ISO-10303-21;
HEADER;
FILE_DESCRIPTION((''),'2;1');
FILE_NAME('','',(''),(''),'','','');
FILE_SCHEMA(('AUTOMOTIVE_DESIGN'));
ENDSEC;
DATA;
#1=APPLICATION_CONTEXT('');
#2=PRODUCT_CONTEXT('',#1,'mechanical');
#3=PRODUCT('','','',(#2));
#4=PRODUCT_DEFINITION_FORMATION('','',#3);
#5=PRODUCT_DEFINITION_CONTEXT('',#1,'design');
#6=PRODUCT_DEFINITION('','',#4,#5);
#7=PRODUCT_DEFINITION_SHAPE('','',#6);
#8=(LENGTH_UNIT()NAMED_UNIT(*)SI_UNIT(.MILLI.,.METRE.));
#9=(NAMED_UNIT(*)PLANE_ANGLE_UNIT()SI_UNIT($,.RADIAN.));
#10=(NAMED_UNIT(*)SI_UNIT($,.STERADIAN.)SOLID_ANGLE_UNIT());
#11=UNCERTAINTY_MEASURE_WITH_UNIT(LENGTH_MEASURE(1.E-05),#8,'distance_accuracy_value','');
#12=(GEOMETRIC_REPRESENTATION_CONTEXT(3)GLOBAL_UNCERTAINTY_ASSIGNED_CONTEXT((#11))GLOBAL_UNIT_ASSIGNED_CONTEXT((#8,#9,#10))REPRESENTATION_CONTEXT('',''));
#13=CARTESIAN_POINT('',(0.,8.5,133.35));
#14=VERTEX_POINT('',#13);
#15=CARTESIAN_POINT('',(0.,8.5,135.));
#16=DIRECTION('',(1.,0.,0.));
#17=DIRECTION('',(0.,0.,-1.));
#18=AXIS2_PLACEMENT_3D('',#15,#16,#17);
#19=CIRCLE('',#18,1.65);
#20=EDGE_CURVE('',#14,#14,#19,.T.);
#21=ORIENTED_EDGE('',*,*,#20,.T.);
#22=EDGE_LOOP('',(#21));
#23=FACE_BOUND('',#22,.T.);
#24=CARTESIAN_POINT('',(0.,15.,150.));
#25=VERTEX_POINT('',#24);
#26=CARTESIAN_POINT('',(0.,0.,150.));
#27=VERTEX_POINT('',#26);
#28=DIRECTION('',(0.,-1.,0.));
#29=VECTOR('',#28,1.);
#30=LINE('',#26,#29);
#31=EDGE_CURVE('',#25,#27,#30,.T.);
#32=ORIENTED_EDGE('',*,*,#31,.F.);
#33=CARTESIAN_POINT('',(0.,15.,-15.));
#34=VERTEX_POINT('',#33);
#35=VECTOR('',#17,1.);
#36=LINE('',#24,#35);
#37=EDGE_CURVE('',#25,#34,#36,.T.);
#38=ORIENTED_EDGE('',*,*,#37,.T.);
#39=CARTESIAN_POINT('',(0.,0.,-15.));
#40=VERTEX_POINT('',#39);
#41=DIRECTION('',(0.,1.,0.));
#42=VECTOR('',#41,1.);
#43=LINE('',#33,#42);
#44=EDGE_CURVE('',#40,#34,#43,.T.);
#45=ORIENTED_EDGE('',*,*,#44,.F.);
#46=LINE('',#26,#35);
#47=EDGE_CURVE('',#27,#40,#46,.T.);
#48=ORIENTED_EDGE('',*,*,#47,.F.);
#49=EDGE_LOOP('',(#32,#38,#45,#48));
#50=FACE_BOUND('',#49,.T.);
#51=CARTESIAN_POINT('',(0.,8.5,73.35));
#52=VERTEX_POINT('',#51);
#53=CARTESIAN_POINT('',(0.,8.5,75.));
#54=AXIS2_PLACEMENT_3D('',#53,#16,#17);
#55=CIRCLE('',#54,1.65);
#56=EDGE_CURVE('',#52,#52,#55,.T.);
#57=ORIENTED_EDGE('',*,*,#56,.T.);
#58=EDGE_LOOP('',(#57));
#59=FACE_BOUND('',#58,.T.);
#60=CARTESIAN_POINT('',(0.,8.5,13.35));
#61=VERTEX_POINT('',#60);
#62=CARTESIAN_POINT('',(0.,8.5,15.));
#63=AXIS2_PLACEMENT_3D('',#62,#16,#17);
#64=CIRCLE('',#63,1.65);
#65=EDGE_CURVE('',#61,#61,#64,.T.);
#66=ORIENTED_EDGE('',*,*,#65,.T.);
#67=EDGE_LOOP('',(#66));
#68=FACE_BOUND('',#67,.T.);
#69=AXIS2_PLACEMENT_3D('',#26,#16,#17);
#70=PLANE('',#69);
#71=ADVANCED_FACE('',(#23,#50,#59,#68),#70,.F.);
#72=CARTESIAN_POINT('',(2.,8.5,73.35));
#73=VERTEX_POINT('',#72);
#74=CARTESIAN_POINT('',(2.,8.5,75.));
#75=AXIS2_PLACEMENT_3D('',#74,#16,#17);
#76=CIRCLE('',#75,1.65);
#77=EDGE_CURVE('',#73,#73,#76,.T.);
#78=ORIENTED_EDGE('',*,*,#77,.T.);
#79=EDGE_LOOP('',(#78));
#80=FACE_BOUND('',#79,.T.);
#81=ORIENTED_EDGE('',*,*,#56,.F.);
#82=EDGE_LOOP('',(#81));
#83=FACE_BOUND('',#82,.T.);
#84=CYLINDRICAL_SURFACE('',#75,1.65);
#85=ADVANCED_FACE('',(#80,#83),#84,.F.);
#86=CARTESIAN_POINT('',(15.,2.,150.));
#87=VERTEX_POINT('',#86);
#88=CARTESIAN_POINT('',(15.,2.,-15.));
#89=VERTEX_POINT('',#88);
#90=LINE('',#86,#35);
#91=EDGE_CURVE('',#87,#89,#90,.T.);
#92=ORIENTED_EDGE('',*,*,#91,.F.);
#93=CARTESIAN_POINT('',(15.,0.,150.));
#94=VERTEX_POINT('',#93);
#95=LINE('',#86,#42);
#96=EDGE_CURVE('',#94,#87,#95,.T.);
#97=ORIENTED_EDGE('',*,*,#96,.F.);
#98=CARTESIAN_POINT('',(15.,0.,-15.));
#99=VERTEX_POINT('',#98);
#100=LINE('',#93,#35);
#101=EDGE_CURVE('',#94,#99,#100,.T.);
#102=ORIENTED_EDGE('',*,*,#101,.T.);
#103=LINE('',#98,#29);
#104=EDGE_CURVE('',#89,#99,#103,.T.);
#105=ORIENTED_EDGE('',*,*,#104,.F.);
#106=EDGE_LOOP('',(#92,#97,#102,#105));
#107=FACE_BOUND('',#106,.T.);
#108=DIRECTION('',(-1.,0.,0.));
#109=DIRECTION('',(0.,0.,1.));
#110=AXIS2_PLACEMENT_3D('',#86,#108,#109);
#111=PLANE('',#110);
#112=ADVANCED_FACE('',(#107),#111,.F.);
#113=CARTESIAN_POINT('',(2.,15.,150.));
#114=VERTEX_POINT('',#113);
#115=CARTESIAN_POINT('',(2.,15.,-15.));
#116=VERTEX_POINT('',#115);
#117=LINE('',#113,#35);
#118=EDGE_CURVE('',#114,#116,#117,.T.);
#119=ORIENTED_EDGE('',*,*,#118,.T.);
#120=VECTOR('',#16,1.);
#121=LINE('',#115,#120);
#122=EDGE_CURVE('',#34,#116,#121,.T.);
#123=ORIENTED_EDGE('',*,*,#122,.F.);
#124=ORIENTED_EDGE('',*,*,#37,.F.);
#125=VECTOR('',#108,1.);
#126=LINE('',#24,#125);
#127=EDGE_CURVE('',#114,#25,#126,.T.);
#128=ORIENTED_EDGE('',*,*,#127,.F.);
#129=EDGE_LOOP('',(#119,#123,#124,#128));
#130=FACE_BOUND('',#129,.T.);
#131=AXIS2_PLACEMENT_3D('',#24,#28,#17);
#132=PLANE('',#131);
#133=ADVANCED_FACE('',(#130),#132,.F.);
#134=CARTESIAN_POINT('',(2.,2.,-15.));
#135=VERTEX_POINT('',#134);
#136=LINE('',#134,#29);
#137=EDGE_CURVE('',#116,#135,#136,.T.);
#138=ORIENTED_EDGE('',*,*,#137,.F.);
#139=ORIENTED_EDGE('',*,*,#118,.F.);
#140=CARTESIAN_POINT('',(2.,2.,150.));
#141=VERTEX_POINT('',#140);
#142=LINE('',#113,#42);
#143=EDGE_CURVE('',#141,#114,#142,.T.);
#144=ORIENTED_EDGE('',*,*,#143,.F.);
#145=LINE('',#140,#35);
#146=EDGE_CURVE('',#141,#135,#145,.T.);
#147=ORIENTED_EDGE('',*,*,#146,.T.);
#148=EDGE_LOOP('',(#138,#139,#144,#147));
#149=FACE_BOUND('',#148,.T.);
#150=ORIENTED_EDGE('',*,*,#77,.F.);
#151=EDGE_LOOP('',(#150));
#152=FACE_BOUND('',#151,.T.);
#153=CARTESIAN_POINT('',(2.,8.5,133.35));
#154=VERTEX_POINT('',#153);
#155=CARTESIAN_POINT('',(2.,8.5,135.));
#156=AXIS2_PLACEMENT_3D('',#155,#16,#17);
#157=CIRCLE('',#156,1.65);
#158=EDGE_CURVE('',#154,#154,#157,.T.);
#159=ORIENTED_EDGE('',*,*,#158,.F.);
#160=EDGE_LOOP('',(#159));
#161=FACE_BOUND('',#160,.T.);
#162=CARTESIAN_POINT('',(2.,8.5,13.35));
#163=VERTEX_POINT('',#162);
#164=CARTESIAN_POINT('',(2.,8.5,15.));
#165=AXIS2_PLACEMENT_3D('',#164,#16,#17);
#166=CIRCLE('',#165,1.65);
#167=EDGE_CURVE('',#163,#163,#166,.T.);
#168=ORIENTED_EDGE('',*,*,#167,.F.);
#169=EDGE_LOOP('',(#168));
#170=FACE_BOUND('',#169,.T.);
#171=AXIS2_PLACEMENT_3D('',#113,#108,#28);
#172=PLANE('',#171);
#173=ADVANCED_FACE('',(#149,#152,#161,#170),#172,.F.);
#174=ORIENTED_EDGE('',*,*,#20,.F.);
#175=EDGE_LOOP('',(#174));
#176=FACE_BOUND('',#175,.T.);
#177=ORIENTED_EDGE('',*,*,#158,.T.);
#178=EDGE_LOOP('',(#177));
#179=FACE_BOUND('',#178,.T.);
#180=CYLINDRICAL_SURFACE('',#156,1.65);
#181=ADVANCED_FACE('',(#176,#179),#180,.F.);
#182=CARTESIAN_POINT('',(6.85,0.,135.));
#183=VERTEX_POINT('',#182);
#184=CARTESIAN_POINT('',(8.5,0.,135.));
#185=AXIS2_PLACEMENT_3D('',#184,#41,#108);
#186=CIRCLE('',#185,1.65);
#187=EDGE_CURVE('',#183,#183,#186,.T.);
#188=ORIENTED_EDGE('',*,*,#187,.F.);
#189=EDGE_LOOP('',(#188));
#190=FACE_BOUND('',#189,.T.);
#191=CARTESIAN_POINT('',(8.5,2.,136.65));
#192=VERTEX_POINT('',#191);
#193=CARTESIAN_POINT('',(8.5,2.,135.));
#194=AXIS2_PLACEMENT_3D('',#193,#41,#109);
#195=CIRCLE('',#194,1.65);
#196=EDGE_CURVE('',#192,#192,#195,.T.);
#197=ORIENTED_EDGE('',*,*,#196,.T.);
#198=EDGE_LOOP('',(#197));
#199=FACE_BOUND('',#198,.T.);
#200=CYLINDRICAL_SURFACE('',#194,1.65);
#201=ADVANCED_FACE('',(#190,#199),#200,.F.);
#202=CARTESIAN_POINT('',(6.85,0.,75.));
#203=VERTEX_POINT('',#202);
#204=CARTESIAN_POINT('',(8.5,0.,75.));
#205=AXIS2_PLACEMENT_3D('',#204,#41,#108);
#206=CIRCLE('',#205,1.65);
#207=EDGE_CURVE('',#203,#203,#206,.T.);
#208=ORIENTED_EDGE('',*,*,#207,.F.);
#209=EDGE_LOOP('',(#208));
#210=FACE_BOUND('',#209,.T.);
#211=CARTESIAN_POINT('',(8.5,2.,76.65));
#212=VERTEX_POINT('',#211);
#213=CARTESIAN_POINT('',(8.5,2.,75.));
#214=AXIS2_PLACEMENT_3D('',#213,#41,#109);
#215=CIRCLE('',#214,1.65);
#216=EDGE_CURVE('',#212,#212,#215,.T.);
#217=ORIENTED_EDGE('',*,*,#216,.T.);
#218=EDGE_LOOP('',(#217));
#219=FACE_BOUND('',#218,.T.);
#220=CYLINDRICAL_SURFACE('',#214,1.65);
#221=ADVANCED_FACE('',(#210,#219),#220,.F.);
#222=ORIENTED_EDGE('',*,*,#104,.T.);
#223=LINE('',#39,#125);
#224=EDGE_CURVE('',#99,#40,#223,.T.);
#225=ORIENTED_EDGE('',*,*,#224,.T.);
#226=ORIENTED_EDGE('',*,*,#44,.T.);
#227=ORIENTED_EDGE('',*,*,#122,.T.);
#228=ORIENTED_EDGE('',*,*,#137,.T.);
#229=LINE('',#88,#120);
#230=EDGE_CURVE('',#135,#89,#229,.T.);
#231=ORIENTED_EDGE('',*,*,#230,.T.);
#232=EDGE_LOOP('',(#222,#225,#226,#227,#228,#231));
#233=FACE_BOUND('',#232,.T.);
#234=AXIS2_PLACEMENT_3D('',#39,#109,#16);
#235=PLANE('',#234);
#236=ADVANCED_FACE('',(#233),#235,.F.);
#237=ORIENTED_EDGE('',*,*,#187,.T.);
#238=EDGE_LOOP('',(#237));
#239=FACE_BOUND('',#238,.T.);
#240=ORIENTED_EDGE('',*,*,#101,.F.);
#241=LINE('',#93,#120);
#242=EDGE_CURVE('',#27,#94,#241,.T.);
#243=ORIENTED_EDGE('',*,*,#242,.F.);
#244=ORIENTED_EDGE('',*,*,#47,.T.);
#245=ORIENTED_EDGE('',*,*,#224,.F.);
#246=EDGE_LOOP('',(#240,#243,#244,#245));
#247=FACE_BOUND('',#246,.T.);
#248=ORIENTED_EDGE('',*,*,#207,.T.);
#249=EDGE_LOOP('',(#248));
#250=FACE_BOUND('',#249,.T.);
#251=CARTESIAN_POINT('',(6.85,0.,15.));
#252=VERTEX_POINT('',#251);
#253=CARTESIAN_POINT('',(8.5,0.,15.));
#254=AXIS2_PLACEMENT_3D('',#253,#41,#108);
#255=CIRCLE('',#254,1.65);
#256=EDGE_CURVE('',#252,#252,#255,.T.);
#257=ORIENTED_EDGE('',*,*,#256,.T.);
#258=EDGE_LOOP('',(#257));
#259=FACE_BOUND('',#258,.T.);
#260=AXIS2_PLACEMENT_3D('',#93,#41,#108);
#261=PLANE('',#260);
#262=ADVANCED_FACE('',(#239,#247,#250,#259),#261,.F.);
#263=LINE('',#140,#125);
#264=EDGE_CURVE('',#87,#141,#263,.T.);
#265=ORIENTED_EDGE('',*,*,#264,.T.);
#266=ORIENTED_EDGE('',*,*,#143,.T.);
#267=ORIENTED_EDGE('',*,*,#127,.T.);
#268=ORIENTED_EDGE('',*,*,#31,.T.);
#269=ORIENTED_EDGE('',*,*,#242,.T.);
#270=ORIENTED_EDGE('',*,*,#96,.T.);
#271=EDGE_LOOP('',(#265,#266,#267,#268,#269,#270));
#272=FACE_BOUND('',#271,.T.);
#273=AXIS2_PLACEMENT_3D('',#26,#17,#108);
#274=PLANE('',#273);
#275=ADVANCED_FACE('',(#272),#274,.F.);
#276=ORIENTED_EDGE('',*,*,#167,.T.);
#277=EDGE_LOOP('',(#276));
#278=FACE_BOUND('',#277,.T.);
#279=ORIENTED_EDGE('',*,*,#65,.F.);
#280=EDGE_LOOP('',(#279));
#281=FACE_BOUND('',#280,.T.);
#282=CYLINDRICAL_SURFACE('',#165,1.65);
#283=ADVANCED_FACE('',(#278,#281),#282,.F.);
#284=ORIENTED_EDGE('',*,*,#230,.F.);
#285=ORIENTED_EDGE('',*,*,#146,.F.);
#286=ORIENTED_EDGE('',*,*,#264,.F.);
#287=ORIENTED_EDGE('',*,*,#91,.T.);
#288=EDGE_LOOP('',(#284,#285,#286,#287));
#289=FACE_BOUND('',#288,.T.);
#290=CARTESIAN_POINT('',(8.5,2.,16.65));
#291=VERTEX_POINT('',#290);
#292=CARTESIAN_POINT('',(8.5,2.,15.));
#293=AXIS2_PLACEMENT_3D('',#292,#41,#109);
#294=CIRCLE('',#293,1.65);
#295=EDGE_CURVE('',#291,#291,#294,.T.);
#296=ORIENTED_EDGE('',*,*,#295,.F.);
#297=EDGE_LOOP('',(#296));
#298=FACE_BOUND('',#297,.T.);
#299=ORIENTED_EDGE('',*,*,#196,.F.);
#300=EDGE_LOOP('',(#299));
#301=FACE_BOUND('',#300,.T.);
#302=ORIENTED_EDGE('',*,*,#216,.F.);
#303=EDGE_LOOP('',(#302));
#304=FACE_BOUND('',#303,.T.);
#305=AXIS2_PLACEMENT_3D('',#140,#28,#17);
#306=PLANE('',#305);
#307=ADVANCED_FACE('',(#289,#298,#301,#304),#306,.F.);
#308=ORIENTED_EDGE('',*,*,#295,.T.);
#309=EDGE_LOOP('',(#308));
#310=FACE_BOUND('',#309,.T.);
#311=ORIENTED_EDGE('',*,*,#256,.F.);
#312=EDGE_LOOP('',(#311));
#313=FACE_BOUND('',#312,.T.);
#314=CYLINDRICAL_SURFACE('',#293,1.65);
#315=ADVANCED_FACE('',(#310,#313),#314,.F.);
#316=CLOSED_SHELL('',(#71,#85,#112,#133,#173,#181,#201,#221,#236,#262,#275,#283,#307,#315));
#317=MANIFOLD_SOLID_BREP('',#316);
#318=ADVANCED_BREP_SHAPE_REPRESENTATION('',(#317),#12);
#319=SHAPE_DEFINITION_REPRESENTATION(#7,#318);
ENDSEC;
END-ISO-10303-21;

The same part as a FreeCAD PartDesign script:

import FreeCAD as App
import Part
import Sketcher
from FreeCAD import Vector
Q = App.Units.Quantity


def add_polygon(sketch, points):
    """Adds a closed chain of lines whose ends are joined by coincident constraints."""
    first, n = sketch.GeometryCount, len(points)
    for a, b in zip(points, points[1:] + points[:1]):
        sketch.addGeometry(Part.LineSegment(App.Vector(*a, 0), App.Vector(*b, 0)), False)
    for i in range(n):
        sketch.addConstraint(Sketcher.Constraint("Coincident", first + i, 2, first + (i + 1) % n, 1))

doc = App.newDocument("Part")
body = doc.addObject("PartDesign::Body", "Body")

# Sketch on XY plane
sketch1 = body.newObject("Sketcher::SketchObject", "Sketch")
sketch1.AttachmentSupport = (doc.getObject("XY_Plane"), [""])
sketch1.MapMode = "FlatFace"
add_polygon(sketch1, [(0, 15), (0, 0), (15, 0), (15, 2), (2, 2), (2, 15)])  # lines 0-5
sketch1.addConstraint(Sketcher.Constraint("Vertical", 0))
sketch1.addConstraint(Sketcher.Constraint("Horizontal", 1))
sketch1.addConstraint(Sketcher.Constraint("Vertical", 2))
sketch1.addConstraint(Sketcher.Constraint("Horizontal", 3))
sketch1.addConstraint(Sketcher.Constraint("Vertical", 4))
sketch1.addConstraint(Sketcher.Constraint("Horizontal", 5))
sketch1.addConstraint(Sketcher.Constraint("Coincident", 0, 2, -1, 1))
sketch1.addConstraint(Sketcher.Constraint("Equal", 1, 0))
sketch1.addConstraint(Sketcher.Constraint("Equal", 5, 2))
sketch1.addConstraint(Sketcher.Constraint("DistanceX", 1, 1, 1, 2, Q("15 mm")))
sketch1.addConstraint(Sketcher.Constraint("DistanceX", 3, 2, 3, 1, Q("13 mm")))
pad1 = body.newObject("PartDesign::Pad", "Pad")
pad1.Profile = sketch1
pad1.Length = 150

# Sketch on XY plane
sketch2 = body.newObject("Sketcher::SketchObject", "Sketch001")
sketch2.AttachmentSupport = (doc.getObject("XY_Plane"), [""])
sketch2.MapMode = "FlatFace"
add_polygon(sketch2, [(2, 2), (15, 2), (15, 0), (0, 0), (0, 15), (2, 15)])  # lines 0-5
sketch2.addConstraint(Sketcher.Constraint("Horizontal", 0))
sketch2.addConstraint(Sketcher.Constraint("Vertical", 1))
sketch2.addConstraint(Sketcher.Constraint("Horizontal", 2))
sketch2.addConstraint(Sketcher.Constraint("Vertical", 3))
sketch2.addConstraint(Sketcher.Constraint("Horizontal", 4))
sketch2.addConstraint(Sketcher.Constraint("Vertical", 5))
sketch2.addConstraint(Sketcher.Constraint("Coincident", 2, 2, -1, 1))
sketch2.addConstraint(Sketcher.Constraint("Equal", 4, 1))
sketch2.addConstraint(Sketcher.Constraint("Equal", 2, 3))
sketch2.addConstraint(Sketcher.Constraint("DistanceX", 0, 1, 0, 2, Q("13 mm")))
sketch2.addConstraint(Sketcher.Constraint("DistanceX", 2, 2, 2, 1, Q("15 mm")))
pad2 = body.newObject("PartDesign::Pad", "Pad001")
pad2.Profile = sketch2
pad2.Length = 15
pad2.Reversed = True

# Sketch on XZ plane
sketch3 = body.newObject("Sketcher::SketchObject", "Sketch002")
sketch3.AttachmentSupport = (doc.getObject("XZ_Plane"), [""])
sketch3.MapMode = "FlatFace"
sketch3.AttachmentOffset = App.Placement(Vector(0, 0, -2), App.Rotation())
sketch3.addGeometry(Part.Circle(Vector(8.5, 15, 0), Vector(0, 0, 1), 1.6), False)
sketch3.addGeometry(Part.Circle(Vector(8.5, 75, 0), Vector(0, 0, 1), 1.6), False)
sketch3.addGeometry(Part.Circle(Vector(8.5, 135, 0), Vector(0, 0, 1), 1.6), False)
sketch3.addConstraint(Sketcher.Constraint("Equal", 0, 1))
sketch3.addConstraint(Sketcher.Constraint("Equal", 1, 2))
sketch3.addConstraint(Sketcher.Constraint("Vertical", 0, 3, 1, 3))
sketch3.addConstraint(Sketcher.Constraint("Vertical", 1, 3, 2, 3))
sketch3.addConstraint(Sketcher.Constraint("Diameter", 0, Q("3.3 mm")))
sketch3.addConstraint(Sketcher.Constraint("DistanceY", -1, 1, 0, 3, Q("15 mm")))
sketch3.addConstraint(Sketcher.Constraint("DistanceY", -1, 1, 1, 3, Q("75 mm")))
sketch3.addConstraint(Sketcher.Constraint("DistanceY", -1, 1, 2, 3, Q("135 mm")))
sketch3.addConstraint(Sketcher.Constraint("DistanceX", -1, 1, 0, 3, Q("8.5 mm")))
doc.recompute()
hole = body.newObject("PartDesign::Hole", "Hole")
hole.Profile = sketch3
hole.ThreadType = "None"
hole.Diameter = 3.3
hole.DepthType = "Dimension"
hole.Depth = 11.5
hole.DrillPoint = "Angled"
hole.DrillPointAngle = 118
hole.Reversed = True

# Sketch on YZ plane
sketch4 = body.newObject("Sketcher::SketchObject", "Sketch003")
sketch4.AttachmentSupport = (doc.getObject("YZ_Plane"), [""])
sketch4.MapMode = "FlatFace"
sketch4.AttachmentOffset = App.Placement(Vector(0, 0, 2), App.Rotation())
sketch4.addGeometry(Part.Circle(Vector(8.5, 135, 0), Vector(0, 0, 1), 1.6), False)
sketch4.addGeometry(Part.Circle(Vector(8.5, 75, 0), Vector(0, 0, 1), 1.6), False)
sketch4.addGeometry(Part.Circle(Vector(8.5, 15, 0), Vector(0, 0, 1), 1.6), False)
sketch4.addConstraint(Sketcher.Constraint("Equal", 0, 1))
sketch4.addConstraint(Sketcher.Constraint("Equal", 1, 2))
sketch4.addConstraint(Sketcher.Constraint("Vertical", 0, 3, 1, 3))
sketch4.addConstraint(Sketcher.Constraint("Vertical", 1, 3, 2, 3))
sketch4.addConstraint(Sketcher.Constraint("Diameter", 0, Q("3.3 mm")))
sketch4.addConstraint(Sketcher.Constraint("DistanceY", -1, 1, 0, 3, Q("135 mm")))
sketch4.addConstraint(Sketcher.Constraint("DistanceY", -1, 1, 1, 3, Q("75 mm")))
sketch4.addConstraint(Sketcher.Constraint("DistanceY", -1, 1, 2, 3, Q("15 mm")))
sketch4.addConstraint(Sketcher.Constraint("DistanceX", -1, 1, 0, 3, Q("8.5 mm")))
doc.recompute()
hole2 = body.newObject("PartDesign::Hole", "Hole001")
hole2.Profile = sketch4
hole2.ThreadType = "None"
hole2.Diameter = 3.3
hole2.DepthType = "Dimension"
hole2.Depth = 11.5
hole2.DrillPoint = "Angled"
hole2.DrillPointAngle = 118

doc.recompute()
